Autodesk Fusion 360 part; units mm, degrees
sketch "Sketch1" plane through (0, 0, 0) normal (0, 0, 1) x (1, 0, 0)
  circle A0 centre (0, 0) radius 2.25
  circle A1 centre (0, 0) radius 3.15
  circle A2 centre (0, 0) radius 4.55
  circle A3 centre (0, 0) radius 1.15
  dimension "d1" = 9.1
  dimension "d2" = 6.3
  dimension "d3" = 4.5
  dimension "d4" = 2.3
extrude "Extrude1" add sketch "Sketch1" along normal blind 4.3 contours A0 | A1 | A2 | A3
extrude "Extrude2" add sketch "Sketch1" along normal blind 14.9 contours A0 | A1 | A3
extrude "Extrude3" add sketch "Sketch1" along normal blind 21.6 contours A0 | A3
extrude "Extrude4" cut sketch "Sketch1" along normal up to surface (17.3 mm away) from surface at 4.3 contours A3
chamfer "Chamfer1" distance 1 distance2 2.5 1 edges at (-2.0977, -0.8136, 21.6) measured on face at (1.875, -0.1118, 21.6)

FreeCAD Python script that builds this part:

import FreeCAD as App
import Part
import Sketcher

V = App.Vector
Q = App.Units.Quantity


def edges_at(feature, points):
    """Names of the edges that pass closest to the given points."""
    edges = feature.Shape.Edges
    near = lambda p: min(range(len(edges)), key=lambda i: edges[i].distToShape(Part.Vertex(*p))[0])
    return sorted({f"Edge{near(p) + 1}" for p in points})

doc = App.newDocument("Part")
body = doc.addObject("PartDesign::Body", "Body")

# Sketch on XY plane
sketch1 = doc.addObject("Sketcher::SketchObject", "Sketch")
body.addObject(sketch1)
sketch1.AttachmentSupport = (doc.XY_Plane, [""])
sketch1.MapMode = "FlatFace"
sketch1.addGeometry(Part.Circle(V(0, 0, 0), V(0, 0, 1), 4.5), False)
sketch1.addConstraint([
    Sketcher.Constraint("Coincident", 0, 3, -1, 1),
    Sketcher.Constraint("Diameter", 0, Q("9.1 mm")),
])
pad1 = doc.addObject("PartDesign::Pad", "Pad")
body.addObject(pad1)
pad1.Profile = sketch1
pad1.Length = 4.3

# Sketch on XY plane
sketch2 = doc.addObject("Sketcher::SketchObject", "Sketch001")
body.addObject(sketch2)
sketch2.AttachmentSupport = (doc.XY_Plane, [""])
sketch2.MapMode = "FlatFace"
sketch2.addGeometry(Part.Circle(V(0, 0, 0), V(0, 0, 1), 3.1), False)
sketch2.addConstraint([
    Sketcher.Constraint("Coincident", 0, 3, -1, 1),
    Sketcher.Constraint("Diameter", 0, Q("6.3 mm")),
])
pad2 = doc.addObject("PartDesign::Pad", "Pad001")
body.addObject(pad2)
pad2.Profile = sketch2
pad2.Length = 14.9

# Sketch on XY plane
sketch3 = doc.addObject("Sketcher::SketchObject", "Sketch002")
body.addObject(sketch3)
sketch3.AttachmentSupport = (doc.XY_Plane, [""])
sketch3.MapMode = "FlatFace"
sketch3.addGeometry(Part.Circle(V(0, 0, 0), V(0, 0, 1), 2.2), False)
sketch3.addConstraint([
    Sketcher.Constraint("Coincident", 0, 3, -1, 1),
    Sketcher.Constraint("Diameter", 0, Q("4.5 mm")),
])
pad3 = doc.addObject("PartDesign::Pad", "Pad002")
body.addObject(pad3)
pad3.Profile = sketch3
pad3.Length = 21.6

# Sketch on XY plane
sketch4 = doc.addObject("Sketcher::SketchObject", "Sketch003")
body.addObject(sketch4)
sketch4.AttachmentSupport = (doc.XY_Plane, [""])
sketch4.MapMode = "FlatFace"
sketch4.AttachmentOffset = App.Placement(V(0, 0, 4.3), App.Rotation())
sketch4.addGeometry(Part.Circle(V(0, 0, 0), V(0, 0, 1), 1.1), False)
sketch4.addConstraint([
    Sketcher.Constraint("Coincident", 0, 3, -1, 1),
    Sketcher.Constraint("Diameter", 0, Q("2.3 mm")),
])
pocket1 = doc.addObject("PartDesign::Pocket", "Pocket")
body.addObject(pocket1)
pocket1.Profile = sketch4
pocket1.Length = 17.3
pocket1.Reversed = True
doc.recompute()

chamfer = doc.addObject("PartDesign::Chamfer", "Chamfer")
body.addObject(chamfer)
chamfer.Base = (pocket1, edges_at(pocket1, [(-2.098, -0.814, 21.6)]))
chamfer.ChamferType = "Two distances"
chamfer.Size = 1
chamfer.Size2 = 2.5
chamfer.FlipDirection = True

doc.recompute()
